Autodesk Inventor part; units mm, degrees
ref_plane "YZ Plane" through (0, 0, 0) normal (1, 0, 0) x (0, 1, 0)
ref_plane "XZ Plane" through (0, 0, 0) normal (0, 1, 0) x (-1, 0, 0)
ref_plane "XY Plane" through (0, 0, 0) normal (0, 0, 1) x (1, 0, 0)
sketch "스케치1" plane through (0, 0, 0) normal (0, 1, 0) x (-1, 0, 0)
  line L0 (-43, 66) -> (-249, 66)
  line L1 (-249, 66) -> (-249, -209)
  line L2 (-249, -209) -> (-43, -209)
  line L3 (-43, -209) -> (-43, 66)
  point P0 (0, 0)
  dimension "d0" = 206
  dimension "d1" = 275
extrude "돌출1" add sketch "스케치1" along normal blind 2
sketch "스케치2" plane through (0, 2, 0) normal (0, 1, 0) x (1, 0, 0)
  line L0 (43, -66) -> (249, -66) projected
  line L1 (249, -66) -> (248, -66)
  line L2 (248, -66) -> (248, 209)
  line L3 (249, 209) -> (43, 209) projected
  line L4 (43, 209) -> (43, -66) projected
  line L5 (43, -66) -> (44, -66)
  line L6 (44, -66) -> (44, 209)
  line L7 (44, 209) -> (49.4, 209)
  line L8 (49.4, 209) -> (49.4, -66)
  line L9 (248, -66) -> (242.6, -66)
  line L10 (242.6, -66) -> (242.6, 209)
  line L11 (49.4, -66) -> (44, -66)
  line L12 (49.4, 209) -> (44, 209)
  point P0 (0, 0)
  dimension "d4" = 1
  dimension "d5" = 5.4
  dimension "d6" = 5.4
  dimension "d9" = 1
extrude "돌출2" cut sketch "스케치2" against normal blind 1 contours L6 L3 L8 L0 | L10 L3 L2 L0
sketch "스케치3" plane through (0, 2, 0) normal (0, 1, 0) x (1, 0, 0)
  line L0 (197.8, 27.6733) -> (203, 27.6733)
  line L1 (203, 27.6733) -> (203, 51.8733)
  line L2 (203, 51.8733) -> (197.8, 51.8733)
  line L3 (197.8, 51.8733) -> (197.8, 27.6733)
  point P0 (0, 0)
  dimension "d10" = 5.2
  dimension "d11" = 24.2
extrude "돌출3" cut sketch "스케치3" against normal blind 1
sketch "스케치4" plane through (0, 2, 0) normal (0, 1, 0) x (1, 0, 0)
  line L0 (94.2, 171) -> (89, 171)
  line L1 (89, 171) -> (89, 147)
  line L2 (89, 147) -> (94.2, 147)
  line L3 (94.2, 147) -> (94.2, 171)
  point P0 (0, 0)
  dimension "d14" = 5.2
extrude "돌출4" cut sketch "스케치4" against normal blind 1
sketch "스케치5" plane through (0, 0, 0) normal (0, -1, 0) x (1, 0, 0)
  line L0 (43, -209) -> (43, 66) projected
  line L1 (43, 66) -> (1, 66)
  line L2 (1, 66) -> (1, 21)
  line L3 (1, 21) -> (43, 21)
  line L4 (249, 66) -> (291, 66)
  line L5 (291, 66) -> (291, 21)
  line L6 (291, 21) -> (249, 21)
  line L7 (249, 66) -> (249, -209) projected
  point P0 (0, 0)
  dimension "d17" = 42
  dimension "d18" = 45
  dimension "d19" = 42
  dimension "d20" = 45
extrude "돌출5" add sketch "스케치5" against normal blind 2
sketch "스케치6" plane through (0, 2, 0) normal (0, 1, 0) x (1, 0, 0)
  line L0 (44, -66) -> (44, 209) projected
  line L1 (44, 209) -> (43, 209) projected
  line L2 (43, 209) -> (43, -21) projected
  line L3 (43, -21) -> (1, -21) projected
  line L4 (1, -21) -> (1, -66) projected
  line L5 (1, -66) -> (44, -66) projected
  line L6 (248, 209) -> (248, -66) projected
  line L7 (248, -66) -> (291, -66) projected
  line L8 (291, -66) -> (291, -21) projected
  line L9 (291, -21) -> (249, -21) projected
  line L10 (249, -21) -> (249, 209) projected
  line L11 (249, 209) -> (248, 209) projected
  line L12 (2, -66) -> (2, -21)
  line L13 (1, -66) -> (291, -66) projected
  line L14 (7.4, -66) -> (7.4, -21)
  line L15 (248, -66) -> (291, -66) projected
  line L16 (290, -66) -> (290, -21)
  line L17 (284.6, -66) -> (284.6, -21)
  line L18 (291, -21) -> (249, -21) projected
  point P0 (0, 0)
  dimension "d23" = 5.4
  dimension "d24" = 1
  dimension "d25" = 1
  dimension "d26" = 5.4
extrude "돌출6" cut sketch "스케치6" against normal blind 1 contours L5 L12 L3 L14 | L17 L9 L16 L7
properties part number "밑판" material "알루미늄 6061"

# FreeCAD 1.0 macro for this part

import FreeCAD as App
import Part
import Sketcher

V = App.Vector


def add_polygon(sketch, points):
    """Adds a closed chain of lines whose ends are joined by coincident constraints."""
    first, n = sketch.GeometryCount, len(points)
    for a, b in zip(points, points[1:] + points[:1]):
        sketch.addGeometry(Part.LineSegment(App.Vector(*a, 0), App.Vector(*b, 0)), False)
    for i in range(n):
        sketch.addConstraint(Sketcher.Constraint("Coincident", first + i, 2, first + (i + 1) % n, 1))

doc = App.newDocument("Part")
body = doc.addObject("PartDesign::Body", "Body")

# Sketch on XZ plane
sketch1 = body.newObject("Sketcher::SketchObject", "Sketch")
sketch1.AttachmentSupport = (doc.getObject("XZ_Plane"), [""])
sketch1.MapMode = "FlatFace"
add_polygon(sketch1, [(43, -209), (43, 66), (249, 66), (249, -209)])  # lines 0-3
sketch1.addConstraint([
    Sketcher.Constraint("Vertical", 0),
    Sketcher.Constraint("Horizontal", 1),
    Sketcher.Constraint("Vertical", 2),
    Sketcher.Constraint("Horizontal", 3),
    Sketcher.Constraint("DistanceX", 1, 1, 1, 2, 206.0),
    Sketcher.Constraint("DistanceY", 0, 1, 0, 2, 275.0),
    Sketcher.Constraint("DistanceX", -1, 1, 0, 2, 43.0),
    Sketcher.Constraint("DistanceY", -1, 1, 0, 2, 66.0),
])
pad1 = body.newObject("PartDesign::Pad", "Pad")
pad1.Profile = sketch1
pad1.Length = 2
pad1.Reversed = True

# Sketch on XZ plane
sketch2 = body.newObject("Sketcher::SketchObject", "Sketch001")
sketch2.AttachmentSupport = (doc.getObject("XZ_Plane"), [""])
sketch2.MapMode = "FlatFace"
sketch2.AttachmentOffset = App.Placement(V(0, 0, -2), App.Rotation())
add_polygon(sketch2, [(44, -209), (44, 66), (49, 66), (49, -209)])  # lines 0-3
add_polygon(sketch2, [(243, -209), (243, 66), (248, 66), (248, -209)])  # lines 4-7
sketch2.addConstraint([
    Sketcher.Constraint("Vertical", 0),
    Sketcher.Constraint("Horizontal", 1),
    Sketcher.Constraint("Vertical", 2),
    Sketcher.Constraint("Horizontal", 3),
    Sketcher.Constraint("Vertical", 4),
    Sketcher.Constraint("Horizontal", 5),
    Sketcher.Constraint("Vertical", 6),
    Sketcher.Constraint("Horizontal", 7),
    Sketcher.Constraint("Horizontal", 1, 2, 4, 2),
    Sketcher.Constraint("Horizontal", 3, 2, 6, 2),
    Sketcher.Constraint("Equal", 3, 5),
    Sketcher.Constraint("DistanceX", 1, 1, 1, 2, 5.4),
    Sketcher.Constraint("DistanceY", 0, 1, 0, 2, 275.0),
    Sketcher.Constraint("DistanceX", -1, 1, 0, 2, 44.0),
    Sketcher.Constraint("DistanceY", -1, 1, 0, 2, 66.0),
    Sketcher.Constraint("DistanceX", -1, 1, 5, 2, 248.0),
])
pocket1 = body.newObject("PartDesign::Pocket", "Pocket")
pocket1.Profile = sketch2
pocket1.Length = 1
pocket1.Reversed = True

# Sketch on XZ plane
sketch3 = body.newObject("Sketcher::SketchObject", "Sketch002")
sketch3.AttachmentSupport = (doc.getObject("XZ_Plane"), [""])
sketch3.MapMode = "FlatFace"
sketch3.AttachmentOffset = App.Placement(V(0, 0, -2), App.Rotation())
add_polygon(sketch3, [(198, -52), (198, -28), (203, -28), (203, -52)])  # lines 0-3
sketch3.addConstraint([
    Sketcher.Constraint("Vertical", 0),
    Sketcher.Constraint("Horizontal", 1),
    Sketcher.Constraint("Vertical", 2),
    Sketcher.Constraint("Horizontal", 3),
    Sketcher.Constraint("DistanceX", 1, 1, 1, 2, 5.2),
    Sketcher.Constraint("DistanceY", 0, 1, 0, 2, 24.2),
    Sketcher.Constraint("DistanceX", -1, 1, 1, 2, 203.0),
    Sketcher.Constraint("DistanceY", 0, 2, -1, 1, 27.6733),
])
pocket2 = body.newObject("PartDesign::Pocket", "Pocket001")
pocket2.Profile = sketch3
pocket2.Length = 1
pocket2.Reversed = True

# Sketch on XZ plane
sketch4 = body.newObject("Sketcher::SketchObject", "Sketch003")
sketch4.AttachmentSupport = (doc.getObject("XZ_Plane"), [""])
sketch4.MapMode = "FlatFace"
sketch4.AttachmentOffset = App.Placement(V(0, 0, -2), App.Rotation())
add_polygon(sketch4, [(94, -147), (94, -171), (89, -171), (89, -147)])  # lines 0-3
sketch4.addConstraint([
    Sketcher.Constraint("Vertical", 0),
    Sketcher.Constraint("Horizontal", 1),
    Sketcher.Constraint("Vertical", 2),
    Sketcher.Constraint("Horizontal", 3),
    Sketcher.Constraint("DistanceX", 1, 2, 1, 1, 5.2),
    Sketcher.Constraint("DistanceY", 0, 2, 0, 1, 24.0),
    Sketcher.Constraint("DistanceY", 0, 2, -1, 1, 171.0),
    Sketcher.Constraint("DistanceX", -1, 1, 1, 2, 89.0),
])
pocket3 = body.newObject("PartDesign::Pocket", "Pocket002")
pocket3.Profile = sketch4
pocket3.Length = 1
pocket3.Reversed = True

# Sketch on XZ plane
sketch5 = body.newObject("Sketcher::SketchObject", "Sketch004")
sketch5.AttachmentSupport = (doc.getObject("XZ_Plane"), [""])
sketch5.MapMode = "FlatFace"
add_polygon(sketch5, [(1, 21), (43, 21), (43, 66), (1, 66)])  # lines 0-3
add_polygon(sketch5, [(291, 66), (249, 66), (249, 21), (291, 21)])  # lines 4-7
sketch5.addConstraint([
    Sketcher.Constraint("Horizontal", 0),
    Sketcher.Constraint("Vertical", 1),
    Sketcher.Constraint("Horizontal", 2),
    Sketcher.Constraint("Vertical", 3),
    Sketcher.Constraint("Horizontal", 4),
    Sketcher.Constraint("Vertical", 5),
    Sketcher.Constraint("Horizontal", 6),
    Sketcher.Constraint("Vertical", 7),
    Sketcher.Constraint("Horizontal", 2, 2, 4, 2),
    Sketcher.Constraint("Horizontal", 3, 2, 5, 2),
    Sketcher.Constraint("Equal", 2, 4),
    Sketcher.Constraint("DistanceX", 0, 1, 0, 2, 42.0),
    Sketcher.Constraint("DistanceY", 1, 1, 1, 2, 45.0),
    Sketcher.Constraint("DistanceX", -1, 1, 0, 2, 43.0),
    Sketcher.Constraint("DistanceY", -1, 1, 0, 2, 21.0),
    Sketcher.Constraint("DistanceX", -1, 1, 4, 2, 249.0),
])
pad2 = body.newObject("PartDesign::Pad", "Pad001")
pad2.Profile = sketch5
pad2.Length = 2
pad2.Reversed = True

# Sketch on XZ plane
sketch6 = body.newObject("Sketcher::SketchObject", "Sketch005")
sketch6.AttachmentSupport = (doc.getObject("XZ_Plane"), [""])
sketch6.MapMode = "FlatFace"
sketch6.AttachmentOffset = App.Placement(V(0, 0, -2), App.Rotation())
add_polygon(sketch6, [(2, 66), (7, 66), (7, 21), (2, 21)])  # lines 0-3
add_polygon(sketch6, [(285, 21), (285, 66), (290, 66), (290, 21)])  # lines 4-7
sketch6.addConstraint([
    Sketcher.Constraint("Horizontal", 0),
    Sketcher.Constraint("Vertical", 1),
    Sketcher.Constraint("Horizontal", 2),
    Sketcher.Constraint("Vertical", 3),
    Sketcher.Constraint("Vertical", 4),
    Sketcher.Constraint("Horizontal", 5),
    Sketcher.Constraint("Vertical", 6),
    Sketcher.Constraint("Horizontal", 7),
    Sketcher.Constraint("Horizontal", 3, 2, 4, 2),
    Sketcher.Constraint("Horizontal", 2, 2, 6, 2),
    Sketcher.Constraint("Equal", 2, 5),
    Sketcher.Constraint("DistanceX", 0, 1, 0, 2, 5.4),
    Sketcher.Constraint("DistanceY", 1, 2, 1, 1, 45.0),
    Sketcher.Constraint("DistanceY", -1, 1, 0, 2, 66.0),
    Sketcher.Constraint("DistanceX", -1, 1, 2, 2, 2.0),
    Sketcher.Constraint("DistanceX", -1, 1, 5, 2, 290.0),
])
pocket4 = body.newObject("PartDesign::Pocket", "Pocket003")
pocket4.Profile = sketch6
pocket4.Length = 1
pocket4.Reversed = True

doc.recompute()
